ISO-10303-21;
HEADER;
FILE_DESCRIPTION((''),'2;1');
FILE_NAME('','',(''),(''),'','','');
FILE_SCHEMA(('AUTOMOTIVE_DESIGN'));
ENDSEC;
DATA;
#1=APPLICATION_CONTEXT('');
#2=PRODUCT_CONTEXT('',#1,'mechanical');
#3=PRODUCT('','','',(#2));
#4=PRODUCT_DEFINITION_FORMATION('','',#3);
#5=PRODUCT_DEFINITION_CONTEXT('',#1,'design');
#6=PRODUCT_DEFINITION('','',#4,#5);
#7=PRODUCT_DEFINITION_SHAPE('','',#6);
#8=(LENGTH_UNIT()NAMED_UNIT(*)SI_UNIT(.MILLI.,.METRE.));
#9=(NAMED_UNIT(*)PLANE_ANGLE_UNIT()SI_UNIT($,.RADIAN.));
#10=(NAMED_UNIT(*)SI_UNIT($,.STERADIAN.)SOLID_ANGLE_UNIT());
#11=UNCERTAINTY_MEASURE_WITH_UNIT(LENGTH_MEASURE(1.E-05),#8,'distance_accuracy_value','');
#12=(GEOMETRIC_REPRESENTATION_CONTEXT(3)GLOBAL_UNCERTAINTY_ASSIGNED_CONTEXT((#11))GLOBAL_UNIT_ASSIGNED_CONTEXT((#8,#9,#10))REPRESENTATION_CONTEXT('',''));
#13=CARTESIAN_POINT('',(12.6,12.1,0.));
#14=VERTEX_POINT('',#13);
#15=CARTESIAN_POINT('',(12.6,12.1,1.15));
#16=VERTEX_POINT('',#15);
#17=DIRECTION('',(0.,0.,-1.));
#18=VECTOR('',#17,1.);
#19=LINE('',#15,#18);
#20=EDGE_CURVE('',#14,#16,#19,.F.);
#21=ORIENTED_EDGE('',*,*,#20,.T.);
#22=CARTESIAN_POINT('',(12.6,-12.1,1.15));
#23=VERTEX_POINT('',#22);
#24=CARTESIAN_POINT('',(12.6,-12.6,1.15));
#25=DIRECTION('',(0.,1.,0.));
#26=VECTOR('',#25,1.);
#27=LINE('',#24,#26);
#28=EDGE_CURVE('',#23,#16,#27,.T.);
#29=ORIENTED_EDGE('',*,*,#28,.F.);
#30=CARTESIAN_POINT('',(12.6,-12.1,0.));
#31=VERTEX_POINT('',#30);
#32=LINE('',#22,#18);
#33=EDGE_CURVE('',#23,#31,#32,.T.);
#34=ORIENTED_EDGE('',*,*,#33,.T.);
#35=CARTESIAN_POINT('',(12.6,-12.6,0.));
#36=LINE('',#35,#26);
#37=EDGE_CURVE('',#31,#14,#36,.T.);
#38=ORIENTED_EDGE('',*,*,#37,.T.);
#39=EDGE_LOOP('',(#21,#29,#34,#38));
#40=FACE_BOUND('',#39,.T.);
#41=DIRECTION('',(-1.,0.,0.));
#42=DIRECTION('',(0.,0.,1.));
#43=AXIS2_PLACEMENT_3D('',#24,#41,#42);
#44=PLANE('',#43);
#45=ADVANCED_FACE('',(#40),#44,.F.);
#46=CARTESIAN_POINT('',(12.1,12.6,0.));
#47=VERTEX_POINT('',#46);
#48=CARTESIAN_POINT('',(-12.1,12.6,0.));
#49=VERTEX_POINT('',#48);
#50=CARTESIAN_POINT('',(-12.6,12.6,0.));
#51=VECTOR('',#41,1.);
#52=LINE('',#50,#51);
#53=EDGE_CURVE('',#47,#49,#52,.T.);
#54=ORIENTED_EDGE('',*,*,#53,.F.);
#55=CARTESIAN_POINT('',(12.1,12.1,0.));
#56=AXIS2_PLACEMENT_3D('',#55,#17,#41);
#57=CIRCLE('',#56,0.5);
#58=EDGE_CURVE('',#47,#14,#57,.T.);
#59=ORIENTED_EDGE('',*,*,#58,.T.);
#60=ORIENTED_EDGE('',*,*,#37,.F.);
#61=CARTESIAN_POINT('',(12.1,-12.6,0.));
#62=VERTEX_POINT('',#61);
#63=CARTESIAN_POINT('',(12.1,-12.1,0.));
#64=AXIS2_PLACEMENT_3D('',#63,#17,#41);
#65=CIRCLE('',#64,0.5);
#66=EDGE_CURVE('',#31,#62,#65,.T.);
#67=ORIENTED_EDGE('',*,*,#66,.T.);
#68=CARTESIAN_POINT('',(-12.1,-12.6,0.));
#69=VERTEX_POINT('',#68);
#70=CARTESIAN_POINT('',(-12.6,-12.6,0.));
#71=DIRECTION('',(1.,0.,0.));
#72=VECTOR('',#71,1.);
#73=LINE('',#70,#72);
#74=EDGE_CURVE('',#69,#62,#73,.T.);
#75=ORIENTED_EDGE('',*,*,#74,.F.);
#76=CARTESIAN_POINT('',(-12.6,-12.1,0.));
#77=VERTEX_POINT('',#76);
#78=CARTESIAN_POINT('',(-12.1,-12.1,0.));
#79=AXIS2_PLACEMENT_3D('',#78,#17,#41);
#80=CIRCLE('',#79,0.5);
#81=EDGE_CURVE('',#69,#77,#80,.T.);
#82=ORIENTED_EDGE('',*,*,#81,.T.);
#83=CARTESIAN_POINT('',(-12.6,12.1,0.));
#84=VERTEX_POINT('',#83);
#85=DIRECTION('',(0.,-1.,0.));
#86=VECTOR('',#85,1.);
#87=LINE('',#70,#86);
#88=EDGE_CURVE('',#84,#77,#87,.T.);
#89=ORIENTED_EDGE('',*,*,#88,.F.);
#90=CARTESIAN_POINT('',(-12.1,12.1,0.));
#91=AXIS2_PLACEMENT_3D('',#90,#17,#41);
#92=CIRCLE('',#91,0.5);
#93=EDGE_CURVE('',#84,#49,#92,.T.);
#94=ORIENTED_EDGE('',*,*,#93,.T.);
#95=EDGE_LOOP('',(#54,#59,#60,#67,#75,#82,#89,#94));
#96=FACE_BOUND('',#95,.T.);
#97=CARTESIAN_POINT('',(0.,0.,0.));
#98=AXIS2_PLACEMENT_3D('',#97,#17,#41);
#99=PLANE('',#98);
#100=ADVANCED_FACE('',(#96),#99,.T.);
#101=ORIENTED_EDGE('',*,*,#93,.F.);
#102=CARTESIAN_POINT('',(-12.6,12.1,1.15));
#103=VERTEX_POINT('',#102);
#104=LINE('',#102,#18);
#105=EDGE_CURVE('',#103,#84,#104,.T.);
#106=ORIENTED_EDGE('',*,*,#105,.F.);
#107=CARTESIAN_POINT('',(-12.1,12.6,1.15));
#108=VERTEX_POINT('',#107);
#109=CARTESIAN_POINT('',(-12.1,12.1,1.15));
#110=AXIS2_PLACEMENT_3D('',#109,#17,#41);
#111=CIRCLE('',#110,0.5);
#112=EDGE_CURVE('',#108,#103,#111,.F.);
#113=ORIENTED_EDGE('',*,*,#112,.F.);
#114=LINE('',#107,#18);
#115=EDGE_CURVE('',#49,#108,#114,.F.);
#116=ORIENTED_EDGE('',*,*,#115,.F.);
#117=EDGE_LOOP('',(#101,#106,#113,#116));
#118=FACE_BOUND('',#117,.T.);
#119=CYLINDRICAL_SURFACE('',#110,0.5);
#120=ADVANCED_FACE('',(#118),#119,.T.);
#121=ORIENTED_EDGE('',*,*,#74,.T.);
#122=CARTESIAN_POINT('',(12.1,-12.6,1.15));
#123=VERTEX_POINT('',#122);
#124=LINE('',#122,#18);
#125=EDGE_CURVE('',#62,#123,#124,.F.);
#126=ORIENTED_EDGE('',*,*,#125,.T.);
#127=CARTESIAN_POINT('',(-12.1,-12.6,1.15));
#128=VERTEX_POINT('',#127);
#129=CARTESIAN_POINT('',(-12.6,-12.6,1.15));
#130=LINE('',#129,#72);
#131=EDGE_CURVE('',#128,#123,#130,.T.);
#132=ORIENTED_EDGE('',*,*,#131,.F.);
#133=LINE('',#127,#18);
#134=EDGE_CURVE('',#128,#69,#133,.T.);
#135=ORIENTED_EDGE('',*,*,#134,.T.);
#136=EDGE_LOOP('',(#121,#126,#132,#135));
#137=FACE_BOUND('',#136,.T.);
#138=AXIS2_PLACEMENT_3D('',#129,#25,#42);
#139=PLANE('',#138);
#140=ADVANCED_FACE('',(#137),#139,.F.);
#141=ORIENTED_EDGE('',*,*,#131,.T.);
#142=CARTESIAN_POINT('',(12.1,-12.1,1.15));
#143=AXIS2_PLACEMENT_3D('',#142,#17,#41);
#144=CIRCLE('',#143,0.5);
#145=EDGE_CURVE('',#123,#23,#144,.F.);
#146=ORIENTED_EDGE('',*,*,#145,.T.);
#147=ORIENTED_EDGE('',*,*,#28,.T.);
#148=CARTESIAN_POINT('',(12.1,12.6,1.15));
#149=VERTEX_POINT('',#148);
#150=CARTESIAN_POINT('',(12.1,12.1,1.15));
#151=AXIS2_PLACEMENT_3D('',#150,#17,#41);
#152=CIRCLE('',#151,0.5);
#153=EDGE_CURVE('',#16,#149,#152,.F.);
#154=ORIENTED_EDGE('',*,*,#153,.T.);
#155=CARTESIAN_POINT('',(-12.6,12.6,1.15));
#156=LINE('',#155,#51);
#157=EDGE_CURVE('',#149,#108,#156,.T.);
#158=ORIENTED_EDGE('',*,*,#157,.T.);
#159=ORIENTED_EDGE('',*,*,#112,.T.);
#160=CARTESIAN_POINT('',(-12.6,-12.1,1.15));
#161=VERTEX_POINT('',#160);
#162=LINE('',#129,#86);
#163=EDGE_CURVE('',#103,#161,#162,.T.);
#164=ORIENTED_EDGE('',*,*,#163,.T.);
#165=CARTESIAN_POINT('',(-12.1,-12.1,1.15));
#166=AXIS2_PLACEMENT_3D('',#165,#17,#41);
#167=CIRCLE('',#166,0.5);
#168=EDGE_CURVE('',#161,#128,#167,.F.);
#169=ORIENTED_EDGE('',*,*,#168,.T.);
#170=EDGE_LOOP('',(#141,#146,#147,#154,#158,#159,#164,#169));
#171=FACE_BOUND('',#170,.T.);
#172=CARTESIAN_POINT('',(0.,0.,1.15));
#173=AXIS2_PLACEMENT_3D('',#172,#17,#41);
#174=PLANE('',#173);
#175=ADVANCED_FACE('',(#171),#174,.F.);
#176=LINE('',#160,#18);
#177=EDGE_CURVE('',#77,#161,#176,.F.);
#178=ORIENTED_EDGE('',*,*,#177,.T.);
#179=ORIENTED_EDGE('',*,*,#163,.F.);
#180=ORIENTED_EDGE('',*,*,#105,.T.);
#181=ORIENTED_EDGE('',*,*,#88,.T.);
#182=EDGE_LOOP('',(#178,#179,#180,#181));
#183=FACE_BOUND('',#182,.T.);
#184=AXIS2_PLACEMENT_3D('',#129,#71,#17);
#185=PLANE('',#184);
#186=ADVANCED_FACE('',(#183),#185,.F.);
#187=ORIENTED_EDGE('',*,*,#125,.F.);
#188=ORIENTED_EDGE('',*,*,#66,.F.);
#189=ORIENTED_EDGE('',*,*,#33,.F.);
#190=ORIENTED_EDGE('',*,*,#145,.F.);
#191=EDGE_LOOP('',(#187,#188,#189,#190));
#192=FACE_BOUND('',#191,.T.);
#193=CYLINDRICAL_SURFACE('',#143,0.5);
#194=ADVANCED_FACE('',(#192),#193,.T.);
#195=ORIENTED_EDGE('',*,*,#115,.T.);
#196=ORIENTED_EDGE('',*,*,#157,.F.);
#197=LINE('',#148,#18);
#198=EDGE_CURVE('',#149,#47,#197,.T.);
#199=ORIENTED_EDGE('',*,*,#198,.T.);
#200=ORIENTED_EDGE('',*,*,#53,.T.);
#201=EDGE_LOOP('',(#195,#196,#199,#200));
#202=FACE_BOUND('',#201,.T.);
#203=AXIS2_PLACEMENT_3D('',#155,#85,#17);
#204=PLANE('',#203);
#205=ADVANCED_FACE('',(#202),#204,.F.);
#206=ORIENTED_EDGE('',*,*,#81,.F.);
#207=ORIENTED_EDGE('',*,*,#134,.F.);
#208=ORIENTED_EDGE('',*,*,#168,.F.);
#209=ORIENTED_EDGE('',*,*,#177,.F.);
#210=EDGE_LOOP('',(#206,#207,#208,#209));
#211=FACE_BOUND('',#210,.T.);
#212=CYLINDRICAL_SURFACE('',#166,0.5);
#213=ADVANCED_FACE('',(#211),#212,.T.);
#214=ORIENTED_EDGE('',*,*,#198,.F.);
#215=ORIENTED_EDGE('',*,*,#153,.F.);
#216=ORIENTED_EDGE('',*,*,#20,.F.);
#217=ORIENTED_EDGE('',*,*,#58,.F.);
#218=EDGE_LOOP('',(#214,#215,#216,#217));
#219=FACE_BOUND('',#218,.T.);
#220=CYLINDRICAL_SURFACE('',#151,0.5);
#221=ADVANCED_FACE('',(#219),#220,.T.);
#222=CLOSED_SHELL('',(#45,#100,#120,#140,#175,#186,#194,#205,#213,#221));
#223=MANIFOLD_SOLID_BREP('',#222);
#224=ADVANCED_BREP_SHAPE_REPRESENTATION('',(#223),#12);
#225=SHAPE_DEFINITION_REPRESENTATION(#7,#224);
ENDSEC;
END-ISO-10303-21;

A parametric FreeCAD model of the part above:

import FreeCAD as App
import Part
import Sketcher
from FreeCAD import Vector
Q = App.Units.Quantity


def edges_at(feature, points):
    """Names of the edges that pass closest to the given points."""
    edges = feature.Shape.Edges
    near = lambda p: min(range(len(edges)), key=lambda i: edges[i].distToShape(Part.Vertex(*p))[0])
    return sorted({f"Edge{near(p) + 1}" for p in points})

doc = App.newDocument("Part")
body = doc.addObject("PartDesign::Body", "Body")

sketch1 = body.newObject("Sketcher::SketchObject", "Sketch")
sketch1.AttachmentSupport = (doc.getObject("XY_Plane"), [""])
sketch1.MapMode = "FlatFace"
sketch1.addGeometry([
    Part.LineSegment(Vector(-13, 13, 0), Vector(-13, -13, 0)),
    Part.LineSegment(Vector(-13, -13, 0), Vector(13, -13, 0)),
    Part.LineSegment(Vector(13, -13, 0), Vector(13, 13, 0)),
    Part.LineSegment(Vector(13, 13, 0), Vector(-13, 13, 0)),
], False)
sketch1.addConstraint([
    Sketcher.Constraint("Coincident", 0, 2, 1, 1),
    Sketcher.Constraint("Coincident", 1, 2, 2, 1),
    Sketcher.Constraint("Coincident", 2, 2, 3, 1),
    Sketcher.Constraint("Coincident", 3, 2, 0, 1),
    Sketcher.Constraint("Vertical", 0),
    Sketcher.Constraint("Horizontal", 1),
    Sketcher.Constraint("Vertical", 2),
    Sketcher.Constraint("Horizontal", 3),
    Sketcher.Constraint("Symmetric", 0, 2, 2, 2, -1, 1),
    Sketcher.Constraint("Equal", 3, 0),
    Sketcher.Constraint("DistanceX", 1, 1, 1, 2, Q("25.2 mm")),
])
pad1 = body.newObject("PartDesign::Pad", "Pad")
pad1.Profile = sketch1
pad1.Length = 1.15
doc.recompute()

fillet = body.newObject("PartDesign::Fillet", "Fillet")
fillet.Base = (pad1, edges_at(pad1, [
    (12.6, -12.6, 0.575),
    (-12.6, -12.6, 0.575),
    (-12.6, 12.6, 0.575),
    (12.6, 12.6, 0.575),
]))
fillet.Radius = 0.5

doc.recompute()
